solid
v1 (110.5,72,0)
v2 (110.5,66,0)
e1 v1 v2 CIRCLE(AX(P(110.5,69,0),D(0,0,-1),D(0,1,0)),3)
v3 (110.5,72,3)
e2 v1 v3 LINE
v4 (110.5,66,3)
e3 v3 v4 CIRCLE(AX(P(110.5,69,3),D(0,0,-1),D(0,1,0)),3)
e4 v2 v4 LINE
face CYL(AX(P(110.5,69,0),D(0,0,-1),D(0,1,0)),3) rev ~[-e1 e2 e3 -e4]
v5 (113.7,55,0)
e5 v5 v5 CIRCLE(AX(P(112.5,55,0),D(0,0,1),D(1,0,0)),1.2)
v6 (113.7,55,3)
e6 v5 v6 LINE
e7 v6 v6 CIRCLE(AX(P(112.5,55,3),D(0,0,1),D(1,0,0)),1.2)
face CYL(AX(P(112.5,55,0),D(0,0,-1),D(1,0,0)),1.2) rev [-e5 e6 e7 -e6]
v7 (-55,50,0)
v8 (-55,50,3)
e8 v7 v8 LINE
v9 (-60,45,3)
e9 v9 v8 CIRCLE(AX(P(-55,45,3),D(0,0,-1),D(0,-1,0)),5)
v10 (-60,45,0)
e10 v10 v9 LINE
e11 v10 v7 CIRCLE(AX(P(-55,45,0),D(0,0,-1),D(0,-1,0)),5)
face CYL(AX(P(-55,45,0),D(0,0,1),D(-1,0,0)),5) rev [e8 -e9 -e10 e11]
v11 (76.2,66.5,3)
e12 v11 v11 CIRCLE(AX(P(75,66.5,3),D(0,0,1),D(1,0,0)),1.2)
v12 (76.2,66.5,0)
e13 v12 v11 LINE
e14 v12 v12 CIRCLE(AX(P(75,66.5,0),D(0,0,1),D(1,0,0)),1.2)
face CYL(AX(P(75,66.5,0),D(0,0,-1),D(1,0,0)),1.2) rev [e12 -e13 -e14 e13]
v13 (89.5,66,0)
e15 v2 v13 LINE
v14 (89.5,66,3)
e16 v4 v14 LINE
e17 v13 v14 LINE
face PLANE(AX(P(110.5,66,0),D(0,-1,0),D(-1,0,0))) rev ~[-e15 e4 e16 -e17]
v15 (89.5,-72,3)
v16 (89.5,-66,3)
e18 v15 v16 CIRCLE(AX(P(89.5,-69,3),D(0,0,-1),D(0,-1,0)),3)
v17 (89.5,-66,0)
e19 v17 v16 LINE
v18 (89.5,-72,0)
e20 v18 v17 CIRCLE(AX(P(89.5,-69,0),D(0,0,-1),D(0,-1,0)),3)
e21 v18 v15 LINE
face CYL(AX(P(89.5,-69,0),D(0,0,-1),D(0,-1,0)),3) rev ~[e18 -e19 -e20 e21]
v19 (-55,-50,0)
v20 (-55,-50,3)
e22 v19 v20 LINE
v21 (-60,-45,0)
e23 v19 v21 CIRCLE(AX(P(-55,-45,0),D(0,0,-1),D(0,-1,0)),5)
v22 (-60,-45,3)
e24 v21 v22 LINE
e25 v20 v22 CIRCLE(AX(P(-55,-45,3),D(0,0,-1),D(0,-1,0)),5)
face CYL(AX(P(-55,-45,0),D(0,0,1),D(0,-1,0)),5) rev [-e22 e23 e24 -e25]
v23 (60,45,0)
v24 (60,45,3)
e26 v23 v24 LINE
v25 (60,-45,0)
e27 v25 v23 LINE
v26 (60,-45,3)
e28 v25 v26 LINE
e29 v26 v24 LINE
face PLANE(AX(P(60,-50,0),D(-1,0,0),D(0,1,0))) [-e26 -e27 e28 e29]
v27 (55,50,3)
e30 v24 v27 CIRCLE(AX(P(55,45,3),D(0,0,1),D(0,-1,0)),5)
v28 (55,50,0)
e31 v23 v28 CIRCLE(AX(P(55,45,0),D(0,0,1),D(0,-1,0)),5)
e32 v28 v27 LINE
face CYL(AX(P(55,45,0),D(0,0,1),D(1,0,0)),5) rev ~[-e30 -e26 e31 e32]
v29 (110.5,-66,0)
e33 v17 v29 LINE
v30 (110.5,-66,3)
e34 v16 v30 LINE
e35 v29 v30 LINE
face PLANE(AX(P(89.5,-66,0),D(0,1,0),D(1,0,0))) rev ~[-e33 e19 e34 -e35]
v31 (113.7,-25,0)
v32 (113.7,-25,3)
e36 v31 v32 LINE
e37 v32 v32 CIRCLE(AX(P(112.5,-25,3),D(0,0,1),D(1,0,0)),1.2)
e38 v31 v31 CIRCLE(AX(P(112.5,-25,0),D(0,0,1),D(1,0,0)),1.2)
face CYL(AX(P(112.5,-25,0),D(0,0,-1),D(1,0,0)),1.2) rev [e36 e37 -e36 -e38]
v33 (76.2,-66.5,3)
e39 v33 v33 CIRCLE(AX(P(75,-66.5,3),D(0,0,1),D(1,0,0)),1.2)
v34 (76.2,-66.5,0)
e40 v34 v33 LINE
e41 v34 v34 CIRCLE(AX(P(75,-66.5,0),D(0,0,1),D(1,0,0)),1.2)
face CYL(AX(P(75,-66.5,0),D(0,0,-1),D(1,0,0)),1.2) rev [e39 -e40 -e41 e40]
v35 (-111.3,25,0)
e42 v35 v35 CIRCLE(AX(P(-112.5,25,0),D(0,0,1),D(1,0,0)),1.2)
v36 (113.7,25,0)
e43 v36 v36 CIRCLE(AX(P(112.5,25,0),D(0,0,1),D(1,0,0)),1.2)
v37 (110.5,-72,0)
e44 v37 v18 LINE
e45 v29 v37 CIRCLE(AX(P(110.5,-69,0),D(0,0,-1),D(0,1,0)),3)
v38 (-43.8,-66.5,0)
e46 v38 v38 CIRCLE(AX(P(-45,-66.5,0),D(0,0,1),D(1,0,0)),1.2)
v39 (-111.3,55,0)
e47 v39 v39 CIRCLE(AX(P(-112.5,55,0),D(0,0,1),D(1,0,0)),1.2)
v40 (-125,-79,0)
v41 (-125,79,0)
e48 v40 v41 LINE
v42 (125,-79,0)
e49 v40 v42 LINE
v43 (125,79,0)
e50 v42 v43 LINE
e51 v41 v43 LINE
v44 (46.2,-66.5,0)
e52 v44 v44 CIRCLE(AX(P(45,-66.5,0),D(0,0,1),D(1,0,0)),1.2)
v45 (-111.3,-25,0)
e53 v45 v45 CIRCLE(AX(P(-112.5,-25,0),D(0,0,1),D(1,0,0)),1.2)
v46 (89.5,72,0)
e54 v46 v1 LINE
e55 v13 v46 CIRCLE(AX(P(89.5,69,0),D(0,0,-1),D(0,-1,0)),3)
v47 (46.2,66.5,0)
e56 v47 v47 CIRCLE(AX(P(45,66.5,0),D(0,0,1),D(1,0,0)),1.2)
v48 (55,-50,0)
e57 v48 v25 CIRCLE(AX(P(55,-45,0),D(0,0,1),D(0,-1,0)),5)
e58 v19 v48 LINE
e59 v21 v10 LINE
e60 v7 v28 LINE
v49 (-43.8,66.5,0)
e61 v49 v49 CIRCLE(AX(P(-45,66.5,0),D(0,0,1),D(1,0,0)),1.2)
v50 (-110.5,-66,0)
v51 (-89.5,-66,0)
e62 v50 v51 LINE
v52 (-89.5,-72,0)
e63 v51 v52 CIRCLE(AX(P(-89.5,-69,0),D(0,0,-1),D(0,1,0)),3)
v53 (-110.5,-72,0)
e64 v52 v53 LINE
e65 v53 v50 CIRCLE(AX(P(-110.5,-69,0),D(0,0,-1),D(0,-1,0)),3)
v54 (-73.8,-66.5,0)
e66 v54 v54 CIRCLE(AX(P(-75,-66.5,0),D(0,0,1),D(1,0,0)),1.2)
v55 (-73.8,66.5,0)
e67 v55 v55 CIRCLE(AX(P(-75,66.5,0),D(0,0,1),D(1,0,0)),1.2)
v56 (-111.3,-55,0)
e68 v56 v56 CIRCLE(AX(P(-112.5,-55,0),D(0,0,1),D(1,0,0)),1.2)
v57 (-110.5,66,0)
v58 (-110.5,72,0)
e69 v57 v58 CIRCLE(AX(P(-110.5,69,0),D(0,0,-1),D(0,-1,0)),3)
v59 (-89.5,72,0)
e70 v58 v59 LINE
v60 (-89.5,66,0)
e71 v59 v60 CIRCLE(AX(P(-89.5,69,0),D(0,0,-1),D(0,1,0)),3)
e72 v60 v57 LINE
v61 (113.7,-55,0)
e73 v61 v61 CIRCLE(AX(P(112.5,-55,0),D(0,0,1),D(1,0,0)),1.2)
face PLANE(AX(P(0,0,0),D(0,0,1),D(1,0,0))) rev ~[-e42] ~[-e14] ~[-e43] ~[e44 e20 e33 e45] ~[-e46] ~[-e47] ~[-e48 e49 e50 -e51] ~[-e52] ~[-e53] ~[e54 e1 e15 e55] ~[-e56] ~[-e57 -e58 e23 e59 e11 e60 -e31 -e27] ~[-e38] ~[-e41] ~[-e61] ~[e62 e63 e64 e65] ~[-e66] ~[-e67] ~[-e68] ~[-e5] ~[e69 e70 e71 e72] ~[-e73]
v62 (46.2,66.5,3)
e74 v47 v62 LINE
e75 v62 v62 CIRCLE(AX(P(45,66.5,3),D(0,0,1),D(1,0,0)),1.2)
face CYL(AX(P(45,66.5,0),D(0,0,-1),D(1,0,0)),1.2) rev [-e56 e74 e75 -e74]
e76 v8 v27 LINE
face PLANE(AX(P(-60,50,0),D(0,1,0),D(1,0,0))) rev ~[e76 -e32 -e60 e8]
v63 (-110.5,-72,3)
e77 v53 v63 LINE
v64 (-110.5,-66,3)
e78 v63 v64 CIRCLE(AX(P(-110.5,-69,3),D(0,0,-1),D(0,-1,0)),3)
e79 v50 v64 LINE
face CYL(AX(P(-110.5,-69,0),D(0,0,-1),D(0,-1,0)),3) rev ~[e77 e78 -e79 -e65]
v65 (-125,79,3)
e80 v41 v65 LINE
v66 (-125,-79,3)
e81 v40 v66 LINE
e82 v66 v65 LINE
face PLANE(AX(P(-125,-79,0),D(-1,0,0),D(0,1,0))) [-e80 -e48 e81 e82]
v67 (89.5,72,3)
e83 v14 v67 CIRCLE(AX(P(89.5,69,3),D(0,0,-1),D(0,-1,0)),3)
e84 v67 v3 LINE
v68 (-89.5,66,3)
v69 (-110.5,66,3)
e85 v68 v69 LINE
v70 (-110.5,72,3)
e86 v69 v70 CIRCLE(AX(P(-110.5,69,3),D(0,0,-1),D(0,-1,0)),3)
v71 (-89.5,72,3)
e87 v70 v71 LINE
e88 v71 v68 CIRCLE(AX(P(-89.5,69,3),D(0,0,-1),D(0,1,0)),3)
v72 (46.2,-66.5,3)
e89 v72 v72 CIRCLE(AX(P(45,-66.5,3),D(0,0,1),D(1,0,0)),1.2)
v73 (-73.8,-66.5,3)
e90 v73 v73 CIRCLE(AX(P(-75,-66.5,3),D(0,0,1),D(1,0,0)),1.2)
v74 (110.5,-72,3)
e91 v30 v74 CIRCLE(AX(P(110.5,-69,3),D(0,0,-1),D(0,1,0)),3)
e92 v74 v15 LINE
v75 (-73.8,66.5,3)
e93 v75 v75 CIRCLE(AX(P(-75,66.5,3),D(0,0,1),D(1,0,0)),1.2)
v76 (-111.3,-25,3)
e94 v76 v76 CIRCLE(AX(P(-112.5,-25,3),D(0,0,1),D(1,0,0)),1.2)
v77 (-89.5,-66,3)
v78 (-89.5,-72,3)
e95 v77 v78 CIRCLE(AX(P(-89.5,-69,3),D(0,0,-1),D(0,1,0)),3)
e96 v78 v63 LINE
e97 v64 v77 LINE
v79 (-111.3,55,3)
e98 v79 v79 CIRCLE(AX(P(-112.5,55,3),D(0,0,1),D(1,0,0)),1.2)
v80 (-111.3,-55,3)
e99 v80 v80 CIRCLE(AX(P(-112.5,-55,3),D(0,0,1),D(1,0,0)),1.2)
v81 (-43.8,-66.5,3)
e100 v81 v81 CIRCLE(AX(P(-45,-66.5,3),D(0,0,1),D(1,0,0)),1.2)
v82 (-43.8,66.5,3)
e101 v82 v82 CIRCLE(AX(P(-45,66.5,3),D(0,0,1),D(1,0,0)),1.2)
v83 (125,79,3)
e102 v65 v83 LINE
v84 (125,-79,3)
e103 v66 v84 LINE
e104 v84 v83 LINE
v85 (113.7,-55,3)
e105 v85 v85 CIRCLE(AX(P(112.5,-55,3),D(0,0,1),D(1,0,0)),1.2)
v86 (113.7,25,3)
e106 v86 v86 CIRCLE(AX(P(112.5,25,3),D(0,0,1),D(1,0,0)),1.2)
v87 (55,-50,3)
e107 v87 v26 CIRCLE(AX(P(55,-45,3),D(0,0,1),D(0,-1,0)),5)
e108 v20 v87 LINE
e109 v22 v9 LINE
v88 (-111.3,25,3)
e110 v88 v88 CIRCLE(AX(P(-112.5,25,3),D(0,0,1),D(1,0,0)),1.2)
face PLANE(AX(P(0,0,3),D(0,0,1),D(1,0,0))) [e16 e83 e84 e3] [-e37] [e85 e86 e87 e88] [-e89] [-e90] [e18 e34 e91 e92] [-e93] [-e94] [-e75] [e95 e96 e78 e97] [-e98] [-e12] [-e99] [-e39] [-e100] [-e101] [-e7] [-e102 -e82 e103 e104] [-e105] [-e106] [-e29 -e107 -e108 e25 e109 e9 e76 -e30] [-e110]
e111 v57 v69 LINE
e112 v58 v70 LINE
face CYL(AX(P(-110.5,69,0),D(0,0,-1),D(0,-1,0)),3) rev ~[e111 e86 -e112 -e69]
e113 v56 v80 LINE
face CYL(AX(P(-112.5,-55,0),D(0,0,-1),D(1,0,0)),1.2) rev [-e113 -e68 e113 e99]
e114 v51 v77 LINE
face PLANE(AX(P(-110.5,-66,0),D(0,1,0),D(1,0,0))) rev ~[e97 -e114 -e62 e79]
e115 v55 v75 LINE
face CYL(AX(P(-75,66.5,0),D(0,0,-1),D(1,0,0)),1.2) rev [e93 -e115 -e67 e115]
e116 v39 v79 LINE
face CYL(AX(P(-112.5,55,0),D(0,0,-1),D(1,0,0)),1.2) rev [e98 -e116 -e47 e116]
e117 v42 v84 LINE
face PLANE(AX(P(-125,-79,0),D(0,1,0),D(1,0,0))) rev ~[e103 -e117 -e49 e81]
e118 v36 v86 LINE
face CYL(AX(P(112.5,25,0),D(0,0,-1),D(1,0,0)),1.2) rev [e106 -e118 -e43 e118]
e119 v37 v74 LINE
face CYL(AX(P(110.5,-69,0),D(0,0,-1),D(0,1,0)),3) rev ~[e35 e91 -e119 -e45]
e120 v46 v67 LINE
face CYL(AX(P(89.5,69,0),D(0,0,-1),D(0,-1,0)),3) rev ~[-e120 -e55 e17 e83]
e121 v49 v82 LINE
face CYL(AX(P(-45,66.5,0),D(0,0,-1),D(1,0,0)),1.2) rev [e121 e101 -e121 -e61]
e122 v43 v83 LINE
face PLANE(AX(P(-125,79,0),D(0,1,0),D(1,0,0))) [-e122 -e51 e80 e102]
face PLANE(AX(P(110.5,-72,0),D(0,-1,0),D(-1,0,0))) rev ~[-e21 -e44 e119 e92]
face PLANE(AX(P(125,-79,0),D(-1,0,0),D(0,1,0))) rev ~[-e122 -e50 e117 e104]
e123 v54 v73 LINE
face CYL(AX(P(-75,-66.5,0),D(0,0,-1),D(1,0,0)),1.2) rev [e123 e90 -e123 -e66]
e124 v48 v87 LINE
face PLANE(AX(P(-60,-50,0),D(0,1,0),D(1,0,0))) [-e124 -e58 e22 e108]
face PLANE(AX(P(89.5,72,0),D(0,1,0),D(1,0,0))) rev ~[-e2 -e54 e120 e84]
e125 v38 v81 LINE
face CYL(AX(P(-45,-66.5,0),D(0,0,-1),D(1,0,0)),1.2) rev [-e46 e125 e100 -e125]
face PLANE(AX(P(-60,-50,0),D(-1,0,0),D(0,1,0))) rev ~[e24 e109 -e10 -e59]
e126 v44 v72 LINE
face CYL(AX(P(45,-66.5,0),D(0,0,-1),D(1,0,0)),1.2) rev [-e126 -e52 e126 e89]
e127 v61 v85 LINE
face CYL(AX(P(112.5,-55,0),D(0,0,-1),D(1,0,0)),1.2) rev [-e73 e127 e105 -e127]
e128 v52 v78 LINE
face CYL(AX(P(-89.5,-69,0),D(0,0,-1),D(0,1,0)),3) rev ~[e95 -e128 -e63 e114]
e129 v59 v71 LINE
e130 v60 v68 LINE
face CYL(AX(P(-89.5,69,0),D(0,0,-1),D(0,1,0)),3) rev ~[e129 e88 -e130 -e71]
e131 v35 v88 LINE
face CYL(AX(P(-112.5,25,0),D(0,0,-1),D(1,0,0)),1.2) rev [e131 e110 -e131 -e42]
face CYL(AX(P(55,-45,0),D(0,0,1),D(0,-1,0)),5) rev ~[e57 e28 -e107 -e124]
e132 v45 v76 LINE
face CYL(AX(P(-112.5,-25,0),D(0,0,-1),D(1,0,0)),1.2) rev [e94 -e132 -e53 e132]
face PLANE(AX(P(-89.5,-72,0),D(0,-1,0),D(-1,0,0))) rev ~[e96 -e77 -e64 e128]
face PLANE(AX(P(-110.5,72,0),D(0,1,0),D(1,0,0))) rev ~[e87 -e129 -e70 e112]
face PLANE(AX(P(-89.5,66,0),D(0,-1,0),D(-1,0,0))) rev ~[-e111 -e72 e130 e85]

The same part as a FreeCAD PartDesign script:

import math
import FreeCAD as App
import Part
import Sketcher
from FreeCAD import Vector
Q = App.Units.Quantity


def edges_at(feature, points):
    """Names of the edges that pass closest to the given points."""
    edges = feature.Shape.Edges
    near = lambda p: min(range(len(edges)), key=lambda i: edges[i].distToShape(Part.Vertex(*p))[0])
    return sorted({f"Edge{near(p) + 1}" for p in points})


def add_polygon(sketch, points):
    """Adds a closed chain of lines whose ends are joined by coincident constraints."""
    first, n = sketch.GeometryCount, len(points)
    for a, b in zip(points, points[1:] + points[:1]):
        sketch.addGeometry(Part.LineSegment(App.Vector(*a, 0), App.Vector(*b, 0)), False)
    for i in range(n):
        sketch.addConstraint(Sketcher.Constraint("Coincident", first + i, 2, first + (i + 1) % n, 1))

doc = App.newDocument("Part")
params = doc.addObject("Spreadsheet::Sheet", "Params")
for row, (alias, value) in enumerate([
    ("sketch1_radius", "3 mm"),
    ("sketch1_diameter", "2.4 mm"),
    ("sketch1_width", "250 mm"),
    ("sketch1_width2", "21 mm"),
    ("sketch1_width3", "120 mm"),
    ("pad1_length", "3 mm"),
    ("fillet_radius", "5 mm"),
], start=1):
    params.set(f"A{row}", alias)
    params.set(f"B{row}", "=" + value)
    params.setAlias(f"B{row}", alias)

body = doc.addObject("PartDesign::Body", "Body")

# Sketch on XY plane
sketch1 = body.newObject("Sketcher::SketchObject", "Sketch")
sketch1.AttachmentSupport = (doc.getObject("XY_Plane"), [""])
sketch1.MapMode = "FlatFace"
add_polygon(sketch1, [(-125, 79), (-125, -79), (125, -79), (125, 79)])  # lines 0-3
sketch1.addGeometry(Part.LineSegment(Vector(-110.5, -66, 0), Vector(-89.5, -66, 0)), False)  # 4
sketch1.addGeometry(Part.ArcOfCircle(Part.Circle(Vector(-89.5, -69, 0), Vector(0, 0, 1), 3), math.radians(-90), math.radians(90)), False)  # 5
sketch1.addGeometry(Part.LineSegment(Vector(-89.5, -72, 0), Vector(-110.5, -72, 0)), False)  # 6
sketch1.addGeometry(Part.ArcOfCircle(Part.Circle(Vector(-110.5, -69, 0), Vector(0, 0, 1), 3), math.radians(90), math.radians(270)), False)  # 7
sketch1.addGeometry(Part.Circle(Vector(-112.5, -55, 0), Vector(0, 0, 1), 1.2), False)  # 8
sketch1.addGeometry(Part.Circle(Vector(-75, -66.5, 0), Vector(0, 0, 1), 1.2), False)  # 9
sketch1.addGeometry(Part.Circle(Vector(-45, -66.5, 0), Vector(0, 0, 1), 1.2), False)  # 10
sketch1.addGeometry(Part.Circle(Vector(-112.5, -25, 0), Vector(0, 0, 1), 1.2), False)  # 11
sketch1.addGeometry(Part.Circle(Vector(45, -66.5, 0), Vector(0, 0, 1), 1.2), False)  # 12
sketch1.addGeometry(Part.Circle(Vector(75, -66.5, 0), Vector(0, 0, 1), 1.2), False)  # 13
sketch1.addGeometry(Part.LineSegment(Vector(110.5, -72, 0), Vector(89.5, -72, 0)), False)  # 14
sketch1.addGeometry(Part.ArcOfCircle(Part.Circle(Vector(89.5, -69, 0), Vector(0, 0, 1), 3), math.radians(90), math.radians(270)), False)  # 15
sketch1.addGeometry(Part.LineSegment(Vector(89.5, -66, 0), Vector(110.5, -66, 0)), False)  # 16
sketch1.addGeometry(Part.ArcOfCircle(Part.Circle(Vector(110.5, -69, 0), Vector(0, 0, 1), 3), math.radians(-90), math.radians(90)), False)  # 17
sketch1.addGeometry(Part.Circle(Vector(112.5, -55, 0), Vector(0, 0, 1), 1.2), False)  # 18
sketch1.addGeometry(Part.Circle(Vector(112.5, -25, 0), Vector(0, 0, 1), 1.2), False)  # 19
sketch1.addGeometry(Part.Circle(Vector(-112.5, 25, 0), Vector(0, 0, 1), 1.2), False)  # 20
add_polygon(sketch1, [(60, -50), (-60, -50), (-60, 50), (60, 50)])  # lines 21-24
sketch1.addGeometry(Part.Circle(Vector(-112.5, 55, 0), Vector(0, 0, 1), 1.2), False)  # 25
sketch1.addGeometry(Part.LineSegment(Vector(-110.5, 72, 0), Vector(-89.5, 72, 0)), False)  # 26
sketch1.addGeometry(Part.ArcOfCircle(Part.Circle(Vector(-89.5, 69, 0), Vector(0, 0, 1), 3), math.radians(-90), math.radians(90)), False)  # 27
sketch1.addGeometry(Part.LineSegment(Vector(-89.5, 66, 0), Vector(-110.5, 66, 0)), False)  # 28
sketch1.addGeometry(Part.ArcOfCircle(Part.Circle(Vector(-110.5, 69, 0), Vector(0, 0, 1), 3), math.radians(90), math.radians(270)), False)  # 29
sketch1.addGeometry(Part.Circle(Vector(-75, 66.5, 0), Vector(0, 0, 1), 1.2), False)  # 30
sketch1.addGeometry(Part.Circle(Vector(-45, 66.5, 0), Vector(0, 0, 1), 1.2), False)  # 31
sketch1.addGeometry(Part.Circle(Vector(112.5, 25, 0), Vector(0, 0, 1), 1.2), False)  # 32
sketch1.addGeometry(Part.Circle(Vector(45, 66.5, 0), Vector(0, 0, 1), 1.2), False)  # 33
sketch1.addGeometry(Part.Circle(Vector(75, 66.5, 0), Vector(0, 0, 1), 1.2), False)  # 34
sketch1.addGeometry(Part.Circle(Vector(112.5, 55, 0), Vector(0, 0, 1), 1.2), False)  # 35
sketch1.addGeometry(Part.LineSegment(Vector(89.5, 72, 0), Vector(110.5, 72, 0)), False)  # 36
sketch1.addGeometry(Part.ArcOfCircle(Part.Circle(Vector(110.5, 69, 0), Vector(0, 0, 1), 3), math.radians(-90), math.radians(90)), False)  # 37
sketch1.addGeometry(Part.LineSegment(Vector(110.5, 66, 0), Vector(89.5, 66, 0)), False)  # 38
sketch1.addGeometry(Part.ArcOfCircle(Part.Circle(Vector(89.5, 69, 0), Vector(0, 0, 1), 3), math.radians(90), math.radians(270)), False)  # 39
sketch1.addConstraint([
    Sketcher.Constraint("Tangent", 4, 2, 5, 2),
    Sketcher.Constraint("Tangent", 5, 1, 6, 1),
    Sketcher.Constraint("Tangent", 6, 2, 7, 2),
    Sketcher.Constraint("Tangent", 7, 1, 4, 1),
    Sketcher.Constraint("Tangent", 14, 2, 15, 2),
    Sketcher.Constraint("Tangent", 15, 1, 16, 1),
    Sketcher.Constraint("Tangent", 16, 2, 17, 2),
    Sketcher.Constraint("Tangent", 17, 1, 14, 1),
    Sketcher.Constraint("Tangent", 26, 2, 27, 2),
    Sketcher.Constraint("Tangent", 27, 1, 28, 1),
    Sketcher.Constraint("Tangent", 28, 2, 29, 2),
    Sketcher.Constraint("Tangent", 29, 1, 26, 1),
    Sketcher.Constraint("Tangent", 36, 2, 37, 2),
    Sketcher.Constraint("Tangent", 37, 1, 38, 1),
    Sketcher.Constraint("Tangent", 38, 2, 39, 2),
    Sketcher.Constraint("Tangent", 39, 1, 36, 1),
    Sketcher.Constraint("Vertical", 0),
    Sketcher.Constraint("Horizontal", 1),
    Sketcher.Constraint("Vertical", 2),
    Sketcher.Constraint("Horizontal", 3),
    Sketcher.Constraint("Horizontal", 4),
    Sketcher.Constraint("Horizontal", 6),
    Sketcher.Constraint("Horizontal", 14),
    Sketcher.Constraint("Horizontal", 16),
    Sketcher.Constraint("Horizontal", 21),
    Sketcher.Constraint("Vertical", 22),
    Sketcher.Constraint("Horizontal", 23),
    Sketcher.Constraint("Vertical", 24),
    Sketcher.Constraint("Horizontal", 26),
    Sketcher.Constraint("Horizontal", 28),
    Sketcher.Constraint("Horizontal", 36),
    Sketcher.Constraint("Horizontal", 38),
    Sketcher.Constraint("Equal", 8, 9),
    Sketcher.Constraint("Equal", 9, 10),
    Sketcher.Constraint("Equal", 10, 11),
    Sketcher.Constraint("Equal", 11, 12),
    Sketcher.Constraint("Equal", 12, 13),
    Sketcher.Constraint("Equal", 7, 15),
    Sketcher.Constraint("Equal", 13, 18),
    Sketcher.Constraint("Equal", 18, 19),
    Sketcher.Constraint("Equal", 19, 20),
    Sketcher.Constraint("Equal", 20, 25),
    Sketcher.Constraint("Equal", 17, 27),
    Sketcher.Constraint("Equal", 25, 30),
    Sketcher.Constraint("Equal", 30, 31),
    Sketcher.Constraint("Equal", 31, 32),
    Sketcher.Constraint("Equal", 32, 33),
    Sketcher.Constraint("Equal", 33, 34),
    Sketcher.Constraint("Equal", 34, 35),
    Sketcher.Constraint("Equal", 29, 37),
    Sketcher.Constraint("Symmetric", 19, 3, 20, 3, -1, 1),
    Sketcher.Constraint("Symmetric", 18, 3, 25, 3, -1, 1),
    Sketcher.Constraint("Symmetric", 15, 3, 27, 3, -1, 1),
    Sketcher.Constraint("Symmetric", 13, 3, 30, 3, -1, 1),
    Sketcher.Constraint("Symmetric", 12, 3, 31, 3, -1, 1),
    Sketcher.Constraint("Symmetric", 11, 3, 32, 3, -1, 1),
    Sketcher.Constraint("Symmetric", 10, 3, 33, 3, -1, 1),
    Sketcher.Constraint("Symmetric", 9, 3, 34, 3, -1, 1),
    Sketcher.Constraint("Symmetric", 8, 3, 35, 3, -1, 1),
    Sketcher.Constraint("Symmetric", 7, 3, 37, 3, -1, 1),
    Sketcher.Constraint("Symmetric", 0, 2, 2, 2, -1, 1),
    Sketcher.Constraint("Symmetric", 21, 2, 23, 2, -1, 1),
    Sketcher.Constraint("Symmetric", 10, 3, 12, 3, -2),
    Sketcher.Constraint("Symmetric", 9, 3, 13, 3, -2),
    Sketcher.Constraint("Symmetric", 5, 3, 15, 3, -2),
    Sketcher.Constraint("Symmetric", 8, 3, 18, 3, -2),
    Sketcher.Constraint("Symmetric", 11, 3, 19, 3, -2),
    Sketcher.Constraint("Horizontal", 9, 3, 10, 3),
    Sketcher.Constraint("Vertical", 8, 3, 11, 3),
    Sketcher.Constraint("Vertical", 7, 3, 29, 3),
    Sketcher.Constraint("Vertical", 17, 3, 37, 3),
    Sketcher.Constraint("Vertical", 15, 3, 39, 3),
    Sketcher.Constraint("Radius", 5, Q("3 mm")),
    Sketcher.Constraint("Diameter", 8, Q("2.4 mm")),
    Sketcher.Constraint("DistanceX", 1, 1, 1, 2, Q("250 mm")),
    Sketcher.Constraint("DistanceX", 4, 1, 4, 2, Q("21 mm")),
    Sketcher.Constraint("DistanceX", 21, 2, 21, 1, Q("120 mm")),
    Sketcher.Constraint("DistanceY", 0, 2, 0, 1, Q("158 mm")),
    Sketcher.Constraint("DistanceY", 22, 1, 22, 2, Q("100 mm")),
    Sketcher.Constraint("DistanceY", 5, 3, -1, 1, Q("69 mm")),
    Sketcher.Constraint("DistanceY", 8, 3, -1, 1, Q("55 mm")),
    Sketcher.Constraint("DistanceX", 9, 3, -1, 1, Q("75 mm")),
    Sketcher.Constraint("DistanceX", 10, 3, -1, 1, Q("45 mm")),
    Sketcher.Constraint("DistanceY", 11, 3, -1, 1, Q("25 mm")),
    Sketcher.Constraint("DistanceX", 8, 3, 7, 3, Q("2 mm")),
    Sketcher.Constraint("DistanceX", 5, 3, 15, 3, Q("179 mm")),
    Sketcher.Constraint("DistanceY", 12, 3, 33, 3, Q("133 mm")),
])
sketch1.setExpression("Constraints[80]", "Params.sketch1_radius")
sketch1.setExpression("Constraints[81]", "Params.sketch1_diameter")
sketch1.setExpression("Constraints[82]", "Params.sketch1_width")
sketch1.setExpression("Constraints[83]", "Params.sketch1_width2")
sketch1.setExpression("Constraints[84]", "Params.sketch1_width3")
pad1 = body.newObject("PartDesign::Pad", "Pad")
pad1.Profile = sketch1
pad1.setExpression("Length", "Params.pad1_length")
doc.recompute()

fillet = body.newObject("PartDesign::Fillet", "Fillet")
fillet.Base = (pad1, edges_at(pad1, [
    (-60, 50, 1.5),
    (-60, -50, 1.5),
    (60, -50, 1.5),
    (60, 50, 1.5),
]))
fillet.setExpression("Radius", "Params.fillet_radius")

doc.recompute()
